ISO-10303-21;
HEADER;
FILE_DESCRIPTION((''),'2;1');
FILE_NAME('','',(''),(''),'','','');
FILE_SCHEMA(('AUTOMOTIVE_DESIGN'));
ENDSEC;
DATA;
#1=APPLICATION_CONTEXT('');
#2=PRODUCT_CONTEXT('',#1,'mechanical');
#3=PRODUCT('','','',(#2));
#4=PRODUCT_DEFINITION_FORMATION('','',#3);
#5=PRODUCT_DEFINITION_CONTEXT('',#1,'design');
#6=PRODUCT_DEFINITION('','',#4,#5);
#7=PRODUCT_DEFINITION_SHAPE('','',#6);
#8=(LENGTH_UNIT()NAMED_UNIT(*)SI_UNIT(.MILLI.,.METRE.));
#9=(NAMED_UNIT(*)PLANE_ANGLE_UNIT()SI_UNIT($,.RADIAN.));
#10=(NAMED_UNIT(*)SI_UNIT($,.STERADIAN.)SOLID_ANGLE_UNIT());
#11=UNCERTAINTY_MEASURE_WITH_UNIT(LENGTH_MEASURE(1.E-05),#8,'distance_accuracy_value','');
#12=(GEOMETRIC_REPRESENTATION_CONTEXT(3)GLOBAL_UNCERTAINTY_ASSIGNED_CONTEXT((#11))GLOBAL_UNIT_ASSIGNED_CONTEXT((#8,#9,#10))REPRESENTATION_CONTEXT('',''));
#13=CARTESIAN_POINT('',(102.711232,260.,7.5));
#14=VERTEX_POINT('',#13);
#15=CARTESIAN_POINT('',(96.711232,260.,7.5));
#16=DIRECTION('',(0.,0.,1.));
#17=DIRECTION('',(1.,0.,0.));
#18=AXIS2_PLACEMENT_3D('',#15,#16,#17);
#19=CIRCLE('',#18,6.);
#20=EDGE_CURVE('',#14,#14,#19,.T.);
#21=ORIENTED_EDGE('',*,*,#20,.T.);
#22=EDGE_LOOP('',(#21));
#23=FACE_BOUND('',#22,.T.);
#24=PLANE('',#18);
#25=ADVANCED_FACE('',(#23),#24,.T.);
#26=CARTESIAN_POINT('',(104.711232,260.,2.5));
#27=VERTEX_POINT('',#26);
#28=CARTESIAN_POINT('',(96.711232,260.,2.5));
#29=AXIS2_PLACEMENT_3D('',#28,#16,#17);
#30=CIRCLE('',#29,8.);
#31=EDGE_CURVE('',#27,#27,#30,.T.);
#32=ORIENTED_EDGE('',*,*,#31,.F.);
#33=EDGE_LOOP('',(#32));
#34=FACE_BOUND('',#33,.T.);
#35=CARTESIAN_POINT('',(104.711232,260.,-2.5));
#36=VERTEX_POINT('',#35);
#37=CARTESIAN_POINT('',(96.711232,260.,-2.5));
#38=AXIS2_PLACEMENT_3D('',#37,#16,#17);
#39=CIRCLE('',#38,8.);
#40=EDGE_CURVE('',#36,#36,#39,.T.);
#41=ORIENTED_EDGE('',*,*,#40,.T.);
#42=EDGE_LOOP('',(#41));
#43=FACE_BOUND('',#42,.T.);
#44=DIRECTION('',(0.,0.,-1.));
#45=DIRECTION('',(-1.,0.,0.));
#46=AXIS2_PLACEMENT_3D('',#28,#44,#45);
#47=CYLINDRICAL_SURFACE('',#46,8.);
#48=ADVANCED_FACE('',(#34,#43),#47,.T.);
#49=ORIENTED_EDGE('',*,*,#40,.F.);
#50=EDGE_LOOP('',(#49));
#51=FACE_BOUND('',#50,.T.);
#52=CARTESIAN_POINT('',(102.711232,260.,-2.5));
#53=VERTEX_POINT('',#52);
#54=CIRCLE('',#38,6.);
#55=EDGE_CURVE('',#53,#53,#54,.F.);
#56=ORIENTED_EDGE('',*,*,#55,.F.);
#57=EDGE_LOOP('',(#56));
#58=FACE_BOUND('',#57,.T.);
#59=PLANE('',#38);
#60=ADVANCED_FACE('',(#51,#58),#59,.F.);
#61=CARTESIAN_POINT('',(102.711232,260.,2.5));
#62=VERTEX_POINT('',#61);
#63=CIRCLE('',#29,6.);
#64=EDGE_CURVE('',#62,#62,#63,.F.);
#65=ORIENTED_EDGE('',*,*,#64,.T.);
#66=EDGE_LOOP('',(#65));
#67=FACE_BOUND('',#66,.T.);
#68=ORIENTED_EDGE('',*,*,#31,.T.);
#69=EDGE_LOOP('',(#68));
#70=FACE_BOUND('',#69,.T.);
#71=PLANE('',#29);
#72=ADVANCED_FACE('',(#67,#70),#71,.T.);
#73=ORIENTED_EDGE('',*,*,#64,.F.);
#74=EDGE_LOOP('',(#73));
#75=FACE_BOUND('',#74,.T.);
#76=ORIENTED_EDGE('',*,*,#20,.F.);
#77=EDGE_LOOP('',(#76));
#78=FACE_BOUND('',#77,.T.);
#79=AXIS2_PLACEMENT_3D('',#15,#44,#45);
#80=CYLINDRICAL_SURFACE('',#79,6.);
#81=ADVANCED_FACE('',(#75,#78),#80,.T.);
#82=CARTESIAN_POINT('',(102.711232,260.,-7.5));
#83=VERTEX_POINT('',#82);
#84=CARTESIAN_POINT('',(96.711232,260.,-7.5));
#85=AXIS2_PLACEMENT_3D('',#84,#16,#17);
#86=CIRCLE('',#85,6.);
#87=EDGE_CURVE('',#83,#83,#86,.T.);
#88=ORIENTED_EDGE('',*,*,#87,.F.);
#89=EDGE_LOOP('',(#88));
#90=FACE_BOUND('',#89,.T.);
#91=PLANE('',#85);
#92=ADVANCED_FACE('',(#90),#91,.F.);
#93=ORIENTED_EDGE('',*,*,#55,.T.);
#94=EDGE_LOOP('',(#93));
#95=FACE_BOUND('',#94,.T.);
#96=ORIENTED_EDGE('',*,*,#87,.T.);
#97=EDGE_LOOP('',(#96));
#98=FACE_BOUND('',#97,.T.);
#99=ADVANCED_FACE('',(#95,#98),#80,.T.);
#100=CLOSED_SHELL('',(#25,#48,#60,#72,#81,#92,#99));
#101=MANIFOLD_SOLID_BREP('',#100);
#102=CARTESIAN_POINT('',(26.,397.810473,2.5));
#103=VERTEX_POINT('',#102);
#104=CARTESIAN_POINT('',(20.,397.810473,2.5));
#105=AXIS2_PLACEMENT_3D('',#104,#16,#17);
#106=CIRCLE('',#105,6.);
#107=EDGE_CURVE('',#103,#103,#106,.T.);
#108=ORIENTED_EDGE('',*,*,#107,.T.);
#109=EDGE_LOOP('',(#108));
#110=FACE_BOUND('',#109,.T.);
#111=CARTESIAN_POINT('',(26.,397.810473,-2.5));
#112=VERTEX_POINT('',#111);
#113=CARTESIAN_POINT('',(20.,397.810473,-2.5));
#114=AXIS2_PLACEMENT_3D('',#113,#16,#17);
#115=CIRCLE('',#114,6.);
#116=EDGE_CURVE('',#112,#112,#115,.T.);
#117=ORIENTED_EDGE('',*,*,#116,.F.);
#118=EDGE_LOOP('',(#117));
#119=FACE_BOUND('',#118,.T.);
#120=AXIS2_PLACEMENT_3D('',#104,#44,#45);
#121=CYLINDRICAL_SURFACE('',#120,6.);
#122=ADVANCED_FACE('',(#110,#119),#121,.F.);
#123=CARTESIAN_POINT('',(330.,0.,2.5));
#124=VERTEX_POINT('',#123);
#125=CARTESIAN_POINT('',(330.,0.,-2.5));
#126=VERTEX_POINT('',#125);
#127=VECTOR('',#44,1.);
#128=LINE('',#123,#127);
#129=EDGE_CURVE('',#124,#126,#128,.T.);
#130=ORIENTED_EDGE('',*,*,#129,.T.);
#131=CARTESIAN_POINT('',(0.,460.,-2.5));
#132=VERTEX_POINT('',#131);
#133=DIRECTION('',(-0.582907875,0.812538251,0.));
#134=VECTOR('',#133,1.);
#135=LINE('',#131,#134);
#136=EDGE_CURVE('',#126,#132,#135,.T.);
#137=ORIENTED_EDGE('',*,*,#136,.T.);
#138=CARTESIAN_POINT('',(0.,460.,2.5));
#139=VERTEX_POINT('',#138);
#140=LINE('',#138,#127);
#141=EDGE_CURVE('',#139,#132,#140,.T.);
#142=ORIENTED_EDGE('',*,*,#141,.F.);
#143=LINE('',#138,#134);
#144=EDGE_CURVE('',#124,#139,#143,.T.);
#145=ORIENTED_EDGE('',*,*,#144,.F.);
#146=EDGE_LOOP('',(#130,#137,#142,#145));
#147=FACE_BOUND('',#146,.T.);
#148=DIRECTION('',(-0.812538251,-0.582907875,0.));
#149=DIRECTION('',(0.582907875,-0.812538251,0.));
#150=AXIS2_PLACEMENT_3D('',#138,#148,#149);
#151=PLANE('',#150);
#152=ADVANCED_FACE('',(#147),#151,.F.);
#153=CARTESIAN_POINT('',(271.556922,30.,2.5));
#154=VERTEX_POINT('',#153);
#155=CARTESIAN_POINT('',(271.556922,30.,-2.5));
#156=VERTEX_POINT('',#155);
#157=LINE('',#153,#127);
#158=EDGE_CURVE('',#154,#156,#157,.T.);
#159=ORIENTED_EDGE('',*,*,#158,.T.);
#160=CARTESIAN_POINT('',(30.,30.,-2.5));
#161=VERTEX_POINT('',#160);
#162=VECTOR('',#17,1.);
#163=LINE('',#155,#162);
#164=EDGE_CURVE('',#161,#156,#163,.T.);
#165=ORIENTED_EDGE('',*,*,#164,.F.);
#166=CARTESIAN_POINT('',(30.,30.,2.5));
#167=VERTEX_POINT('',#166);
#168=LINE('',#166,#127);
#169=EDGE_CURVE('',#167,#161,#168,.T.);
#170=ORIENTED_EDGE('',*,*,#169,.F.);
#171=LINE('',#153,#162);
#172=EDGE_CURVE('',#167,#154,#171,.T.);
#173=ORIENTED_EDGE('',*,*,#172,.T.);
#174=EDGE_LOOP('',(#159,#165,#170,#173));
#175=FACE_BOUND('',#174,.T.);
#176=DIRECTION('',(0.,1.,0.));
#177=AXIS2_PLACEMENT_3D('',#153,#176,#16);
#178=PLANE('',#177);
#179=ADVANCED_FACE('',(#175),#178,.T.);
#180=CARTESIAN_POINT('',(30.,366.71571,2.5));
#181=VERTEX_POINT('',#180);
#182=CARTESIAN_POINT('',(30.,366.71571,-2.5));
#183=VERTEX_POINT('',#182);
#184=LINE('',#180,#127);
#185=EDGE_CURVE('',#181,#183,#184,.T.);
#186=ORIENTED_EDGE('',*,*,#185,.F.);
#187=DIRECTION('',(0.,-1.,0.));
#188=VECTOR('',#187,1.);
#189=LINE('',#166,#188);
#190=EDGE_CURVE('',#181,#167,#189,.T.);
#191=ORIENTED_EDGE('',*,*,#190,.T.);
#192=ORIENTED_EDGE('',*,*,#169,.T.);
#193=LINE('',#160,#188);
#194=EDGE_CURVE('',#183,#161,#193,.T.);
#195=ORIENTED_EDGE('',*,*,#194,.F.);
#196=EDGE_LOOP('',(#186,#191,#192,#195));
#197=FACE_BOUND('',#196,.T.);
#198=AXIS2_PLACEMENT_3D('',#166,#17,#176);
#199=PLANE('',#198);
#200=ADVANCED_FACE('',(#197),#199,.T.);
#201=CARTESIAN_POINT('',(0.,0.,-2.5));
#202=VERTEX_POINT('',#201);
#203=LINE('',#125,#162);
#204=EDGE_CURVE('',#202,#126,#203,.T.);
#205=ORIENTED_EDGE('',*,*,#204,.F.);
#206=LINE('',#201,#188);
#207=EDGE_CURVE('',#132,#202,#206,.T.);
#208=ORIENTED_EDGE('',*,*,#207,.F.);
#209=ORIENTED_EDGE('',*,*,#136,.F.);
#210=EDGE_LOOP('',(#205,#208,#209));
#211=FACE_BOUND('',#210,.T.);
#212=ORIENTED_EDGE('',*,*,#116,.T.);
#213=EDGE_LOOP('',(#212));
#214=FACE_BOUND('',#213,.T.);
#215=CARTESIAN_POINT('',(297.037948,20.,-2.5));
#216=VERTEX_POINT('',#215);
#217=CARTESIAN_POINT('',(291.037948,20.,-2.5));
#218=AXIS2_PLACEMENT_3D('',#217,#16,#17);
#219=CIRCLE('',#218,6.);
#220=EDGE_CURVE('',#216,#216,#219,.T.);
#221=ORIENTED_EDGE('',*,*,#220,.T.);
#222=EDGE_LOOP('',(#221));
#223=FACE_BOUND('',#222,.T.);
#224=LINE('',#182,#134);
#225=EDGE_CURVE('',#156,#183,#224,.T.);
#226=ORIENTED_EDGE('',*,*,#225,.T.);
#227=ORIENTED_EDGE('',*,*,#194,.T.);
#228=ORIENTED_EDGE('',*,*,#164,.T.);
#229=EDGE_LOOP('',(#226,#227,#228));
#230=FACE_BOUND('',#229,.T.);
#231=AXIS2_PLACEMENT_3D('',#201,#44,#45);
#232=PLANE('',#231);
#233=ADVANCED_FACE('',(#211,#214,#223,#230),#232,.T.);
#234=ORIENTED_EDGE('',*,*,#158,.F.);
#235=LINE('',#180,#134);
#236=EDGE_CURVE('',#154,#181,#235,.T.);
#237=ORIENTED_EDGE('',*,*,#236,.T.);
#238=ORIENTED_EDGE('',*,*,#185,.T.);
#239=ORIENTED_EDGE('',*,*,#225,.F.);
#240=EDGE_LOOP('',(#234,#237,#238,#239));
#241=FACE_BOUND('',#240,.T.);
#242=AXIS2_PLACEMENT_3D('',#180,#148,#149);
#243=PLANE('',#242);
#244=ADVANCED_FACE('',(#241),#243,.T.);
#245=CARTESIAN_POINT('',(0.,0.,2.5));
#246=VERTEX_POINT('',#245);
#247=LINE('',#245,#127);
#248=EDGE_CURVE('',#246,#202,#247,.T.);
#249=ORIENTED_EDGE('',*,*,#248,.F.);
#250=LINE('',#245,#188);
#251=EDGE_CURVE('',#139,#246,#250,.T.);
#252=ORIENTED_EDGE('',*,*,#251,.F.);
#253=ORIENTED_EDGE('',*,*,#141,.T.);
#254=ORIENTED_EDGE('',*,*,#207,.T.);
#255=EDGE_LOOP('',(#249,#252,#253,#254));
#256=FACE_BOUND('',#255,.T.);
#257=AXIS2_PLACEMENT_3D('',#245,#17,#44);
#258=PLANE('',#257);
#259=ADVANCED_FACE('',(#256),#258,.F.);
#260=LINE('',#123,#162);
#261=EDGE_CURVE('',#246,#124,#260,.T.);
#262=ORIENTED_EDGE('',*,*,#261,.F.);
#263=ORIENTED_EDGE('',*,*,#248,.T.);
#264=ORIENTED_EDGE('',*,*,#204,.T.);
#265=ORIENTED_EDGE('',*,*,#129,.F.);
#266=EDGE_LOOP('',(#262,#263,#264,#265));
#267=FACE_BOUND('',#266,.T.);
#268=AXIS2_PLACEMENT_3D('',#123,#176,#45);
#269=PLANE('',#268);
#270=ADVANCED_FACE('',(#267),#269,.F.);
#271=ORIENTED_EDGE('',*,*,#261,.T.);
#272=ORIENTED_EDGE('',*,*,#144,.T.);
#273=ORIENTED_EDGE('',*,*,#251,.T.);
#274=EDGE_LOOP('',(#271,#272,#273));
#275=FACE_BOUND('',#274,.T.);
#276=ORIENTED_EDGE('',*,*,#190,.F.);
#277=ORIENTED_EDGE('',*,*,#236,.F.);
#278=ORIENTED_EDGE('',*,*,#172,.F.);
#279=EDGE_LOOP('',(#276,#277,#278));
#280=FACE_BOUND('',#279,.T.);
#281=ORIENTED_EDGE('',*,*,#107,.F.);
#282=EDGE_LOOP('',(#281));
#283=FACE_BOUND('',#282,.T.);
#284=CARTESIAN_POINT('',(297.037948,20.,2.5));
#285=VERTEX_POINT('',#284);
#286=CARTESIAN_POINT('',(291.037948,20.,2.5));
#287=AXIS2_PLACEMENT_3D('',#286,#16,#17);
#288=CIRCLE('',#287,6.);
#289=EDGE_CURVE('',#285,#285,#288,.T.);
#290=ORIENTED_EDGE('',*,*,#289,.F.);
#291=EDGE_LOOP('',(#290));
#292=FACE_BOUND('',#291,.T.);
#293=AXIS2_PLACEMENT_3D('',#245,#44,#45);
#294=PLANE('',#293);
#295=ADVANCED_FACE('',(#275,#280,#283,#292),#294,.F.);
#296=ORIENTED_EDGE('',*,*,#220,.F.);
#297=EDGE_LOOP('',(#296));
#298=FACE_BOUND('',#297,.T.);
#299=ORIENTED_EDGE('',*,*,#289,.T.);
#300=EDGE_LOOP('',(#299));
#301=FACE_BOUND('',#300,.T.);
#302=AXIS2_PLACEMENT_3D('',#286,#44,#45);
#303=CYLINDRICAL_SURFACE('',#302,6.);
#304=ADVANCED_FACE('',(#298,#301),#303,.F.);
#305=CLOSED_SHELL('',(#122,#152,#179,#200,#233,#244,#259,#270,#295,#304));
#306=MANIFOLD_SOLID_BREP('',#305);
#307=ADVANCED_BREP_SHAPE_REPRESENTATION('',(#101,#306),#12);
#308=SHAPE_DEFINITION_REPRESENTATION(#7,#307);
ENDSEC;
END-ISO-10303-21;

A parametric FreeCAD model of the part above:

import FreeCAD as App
import Part
import Sketcher

V = App.Vector

doc = App.newDocument("Part")
body = doc.addObject("PartDesign::Body", "Body")

sketch1 = body.newObject("Sketcher::SketchObject", "Sketch")
sketch1.AttachmentSupport = (doc.getObject("XY_Plane"), [""])
sketch1.MapMode = "FlatFace"
sketch1.addGeometry([
    Part.LineSegment(V(0, 460, 0), V(0, 0, 0)),
    Part.LineSegment(V(0, 0, 0), V(330, 0, 0)),
    Part.LineSegment(V(330, 0, 0), V(0, 460, 0)),
    Part.Circle(V(291, 20, 0), V(0, 0, 1), 6),
    Part.LineSegment(V(30, 30, 0), V(30, 367, 0)),
    Part.LineSegment(V(30, 367, 0), V(272, 30, 0)),
    Part.LineSegment(V(272, 30, 0), V(30, 30, 0)),
    Part.Circle(V(20, 398, 0), V(0, 0, 1), 6),
], False)
sketch1.addConstraint([
    Sketcher.Constraint("Coincident", 0, 2, 1, 1),
    Sketcher.Constraint("Coincident", 1, 2, 2, 1),
    Sketcher.Constraint("Coincident", 2, 2, 0, 1),
    Sketcher.Constraint("Coincident", 4, 2, 5, 1),
    Sketcher.Constraint("Coincident", 5, 2, 6, 1),
    Sketcher.Constraint("Coincident", 6, 2, 4, 1),
    Sketcher.Constraint("Vertical", 0),
    Sketcher.Constraint("Horizontal", 1),
    Sketcher.Constraint("Vertical", 4),
    Sketcher.Constraint("Horizontal", 6),
    Sketcher.Constraint("Coincident", 0, 2, -1, 1),
    Sketcher.Constraint("Equal", 3, 7),
    Sketcher.Constraint("Parallel", 2, 5),
    Sketcher.Constraint("Diameter", 3, 12.0),
    Sketcher.Constraint("DistanceX", 1, 1, 1, 2, 330.0),
    Sketcher.Constraint("DistanceY", 0, 2, 0, 1, 460.0),
    Sketcher.Constraint("DistanceY", -1, 1, 3, 3, 20.0),
    Sketcher.Constraint("DistanceX", -1, 1, 7, 3, 20.0),
    Sketcher.Constraint("DistanceX", -1, 1, 4, 2, 30.0),
    Sketcher.Constraint("DistanceY", -1, 1, 5, 2, 30.0),
    Sketcher.Constraint("DistanceY", 4, 1, 4, 2, 336.71571),
    Sketcher.Constraint("DistanceX", -1, 1, 3, 3, 291.037948),
    Sketcher.Constraint("DistanceY", -1, 1, 7, 3, 397.810473),
])
pad1 = body.newObject("PartDesign::Pad", "Pad")
pad1.Profile = sketch1
pad1.Length = 5
pad1.Midplane = True
body2 = doc.addObject("PartDesign::Body", "Body001")

sketch2 = body2.newObject("Sketcher::SketchObject", "Sketch001")
sketch2.AttachmentSupport = (doc.getObject("XY_Plane001"), [""])
sketch2.MapMode = "FlatFace"
sketch2.addGeometry(Part.Circle(V(97, 260, 0), V(0, 0, 1), 8), False)
sketch2.addConstraint([
    Sketcher.Constraint("Diameter", 0, 16.0),
    Sketcher.Constraint("DistanceY", -1, 1, 0, 3, 260.0),
    Sketcher.Constraint("DistanceX", -1, 1, 0, 3, 96.711232),
])
pad2 = body2.newObject("PartDesign::Pad", "Pad001")
pad2.Profile = sketch2
pad2.Length = 5
pad2.Midplane = True

sketch3 = body2.newObject("Sketcher::SketchObject", "Sketch002")
sketch3.AttachmentSupport = (doc.getObject("XY_Plane001"), [""])
sketch3.MapMode = "FlatFace"
sketch3.addGeometry(Part.Circle(V(97, 260, 0), V(0, 0, 1), 6), False)
sketch3.addConstraint([
    Sketcher.Constraint("Diameter", 0, 12.0),
    Sketcher.Constraint("DistanceY", -1, 1, 0, 3, 260.0),
    Sketcher.Constraint("DistanceX", -1, 1, 0, 3, 96.711232),
])
pad3 = body2.newObject("PartDesign::Pad", "Pad002")
pad3.Profile = sketch3
pad3.Length = 15
pad3.Midplane = True

doc.recompute()
